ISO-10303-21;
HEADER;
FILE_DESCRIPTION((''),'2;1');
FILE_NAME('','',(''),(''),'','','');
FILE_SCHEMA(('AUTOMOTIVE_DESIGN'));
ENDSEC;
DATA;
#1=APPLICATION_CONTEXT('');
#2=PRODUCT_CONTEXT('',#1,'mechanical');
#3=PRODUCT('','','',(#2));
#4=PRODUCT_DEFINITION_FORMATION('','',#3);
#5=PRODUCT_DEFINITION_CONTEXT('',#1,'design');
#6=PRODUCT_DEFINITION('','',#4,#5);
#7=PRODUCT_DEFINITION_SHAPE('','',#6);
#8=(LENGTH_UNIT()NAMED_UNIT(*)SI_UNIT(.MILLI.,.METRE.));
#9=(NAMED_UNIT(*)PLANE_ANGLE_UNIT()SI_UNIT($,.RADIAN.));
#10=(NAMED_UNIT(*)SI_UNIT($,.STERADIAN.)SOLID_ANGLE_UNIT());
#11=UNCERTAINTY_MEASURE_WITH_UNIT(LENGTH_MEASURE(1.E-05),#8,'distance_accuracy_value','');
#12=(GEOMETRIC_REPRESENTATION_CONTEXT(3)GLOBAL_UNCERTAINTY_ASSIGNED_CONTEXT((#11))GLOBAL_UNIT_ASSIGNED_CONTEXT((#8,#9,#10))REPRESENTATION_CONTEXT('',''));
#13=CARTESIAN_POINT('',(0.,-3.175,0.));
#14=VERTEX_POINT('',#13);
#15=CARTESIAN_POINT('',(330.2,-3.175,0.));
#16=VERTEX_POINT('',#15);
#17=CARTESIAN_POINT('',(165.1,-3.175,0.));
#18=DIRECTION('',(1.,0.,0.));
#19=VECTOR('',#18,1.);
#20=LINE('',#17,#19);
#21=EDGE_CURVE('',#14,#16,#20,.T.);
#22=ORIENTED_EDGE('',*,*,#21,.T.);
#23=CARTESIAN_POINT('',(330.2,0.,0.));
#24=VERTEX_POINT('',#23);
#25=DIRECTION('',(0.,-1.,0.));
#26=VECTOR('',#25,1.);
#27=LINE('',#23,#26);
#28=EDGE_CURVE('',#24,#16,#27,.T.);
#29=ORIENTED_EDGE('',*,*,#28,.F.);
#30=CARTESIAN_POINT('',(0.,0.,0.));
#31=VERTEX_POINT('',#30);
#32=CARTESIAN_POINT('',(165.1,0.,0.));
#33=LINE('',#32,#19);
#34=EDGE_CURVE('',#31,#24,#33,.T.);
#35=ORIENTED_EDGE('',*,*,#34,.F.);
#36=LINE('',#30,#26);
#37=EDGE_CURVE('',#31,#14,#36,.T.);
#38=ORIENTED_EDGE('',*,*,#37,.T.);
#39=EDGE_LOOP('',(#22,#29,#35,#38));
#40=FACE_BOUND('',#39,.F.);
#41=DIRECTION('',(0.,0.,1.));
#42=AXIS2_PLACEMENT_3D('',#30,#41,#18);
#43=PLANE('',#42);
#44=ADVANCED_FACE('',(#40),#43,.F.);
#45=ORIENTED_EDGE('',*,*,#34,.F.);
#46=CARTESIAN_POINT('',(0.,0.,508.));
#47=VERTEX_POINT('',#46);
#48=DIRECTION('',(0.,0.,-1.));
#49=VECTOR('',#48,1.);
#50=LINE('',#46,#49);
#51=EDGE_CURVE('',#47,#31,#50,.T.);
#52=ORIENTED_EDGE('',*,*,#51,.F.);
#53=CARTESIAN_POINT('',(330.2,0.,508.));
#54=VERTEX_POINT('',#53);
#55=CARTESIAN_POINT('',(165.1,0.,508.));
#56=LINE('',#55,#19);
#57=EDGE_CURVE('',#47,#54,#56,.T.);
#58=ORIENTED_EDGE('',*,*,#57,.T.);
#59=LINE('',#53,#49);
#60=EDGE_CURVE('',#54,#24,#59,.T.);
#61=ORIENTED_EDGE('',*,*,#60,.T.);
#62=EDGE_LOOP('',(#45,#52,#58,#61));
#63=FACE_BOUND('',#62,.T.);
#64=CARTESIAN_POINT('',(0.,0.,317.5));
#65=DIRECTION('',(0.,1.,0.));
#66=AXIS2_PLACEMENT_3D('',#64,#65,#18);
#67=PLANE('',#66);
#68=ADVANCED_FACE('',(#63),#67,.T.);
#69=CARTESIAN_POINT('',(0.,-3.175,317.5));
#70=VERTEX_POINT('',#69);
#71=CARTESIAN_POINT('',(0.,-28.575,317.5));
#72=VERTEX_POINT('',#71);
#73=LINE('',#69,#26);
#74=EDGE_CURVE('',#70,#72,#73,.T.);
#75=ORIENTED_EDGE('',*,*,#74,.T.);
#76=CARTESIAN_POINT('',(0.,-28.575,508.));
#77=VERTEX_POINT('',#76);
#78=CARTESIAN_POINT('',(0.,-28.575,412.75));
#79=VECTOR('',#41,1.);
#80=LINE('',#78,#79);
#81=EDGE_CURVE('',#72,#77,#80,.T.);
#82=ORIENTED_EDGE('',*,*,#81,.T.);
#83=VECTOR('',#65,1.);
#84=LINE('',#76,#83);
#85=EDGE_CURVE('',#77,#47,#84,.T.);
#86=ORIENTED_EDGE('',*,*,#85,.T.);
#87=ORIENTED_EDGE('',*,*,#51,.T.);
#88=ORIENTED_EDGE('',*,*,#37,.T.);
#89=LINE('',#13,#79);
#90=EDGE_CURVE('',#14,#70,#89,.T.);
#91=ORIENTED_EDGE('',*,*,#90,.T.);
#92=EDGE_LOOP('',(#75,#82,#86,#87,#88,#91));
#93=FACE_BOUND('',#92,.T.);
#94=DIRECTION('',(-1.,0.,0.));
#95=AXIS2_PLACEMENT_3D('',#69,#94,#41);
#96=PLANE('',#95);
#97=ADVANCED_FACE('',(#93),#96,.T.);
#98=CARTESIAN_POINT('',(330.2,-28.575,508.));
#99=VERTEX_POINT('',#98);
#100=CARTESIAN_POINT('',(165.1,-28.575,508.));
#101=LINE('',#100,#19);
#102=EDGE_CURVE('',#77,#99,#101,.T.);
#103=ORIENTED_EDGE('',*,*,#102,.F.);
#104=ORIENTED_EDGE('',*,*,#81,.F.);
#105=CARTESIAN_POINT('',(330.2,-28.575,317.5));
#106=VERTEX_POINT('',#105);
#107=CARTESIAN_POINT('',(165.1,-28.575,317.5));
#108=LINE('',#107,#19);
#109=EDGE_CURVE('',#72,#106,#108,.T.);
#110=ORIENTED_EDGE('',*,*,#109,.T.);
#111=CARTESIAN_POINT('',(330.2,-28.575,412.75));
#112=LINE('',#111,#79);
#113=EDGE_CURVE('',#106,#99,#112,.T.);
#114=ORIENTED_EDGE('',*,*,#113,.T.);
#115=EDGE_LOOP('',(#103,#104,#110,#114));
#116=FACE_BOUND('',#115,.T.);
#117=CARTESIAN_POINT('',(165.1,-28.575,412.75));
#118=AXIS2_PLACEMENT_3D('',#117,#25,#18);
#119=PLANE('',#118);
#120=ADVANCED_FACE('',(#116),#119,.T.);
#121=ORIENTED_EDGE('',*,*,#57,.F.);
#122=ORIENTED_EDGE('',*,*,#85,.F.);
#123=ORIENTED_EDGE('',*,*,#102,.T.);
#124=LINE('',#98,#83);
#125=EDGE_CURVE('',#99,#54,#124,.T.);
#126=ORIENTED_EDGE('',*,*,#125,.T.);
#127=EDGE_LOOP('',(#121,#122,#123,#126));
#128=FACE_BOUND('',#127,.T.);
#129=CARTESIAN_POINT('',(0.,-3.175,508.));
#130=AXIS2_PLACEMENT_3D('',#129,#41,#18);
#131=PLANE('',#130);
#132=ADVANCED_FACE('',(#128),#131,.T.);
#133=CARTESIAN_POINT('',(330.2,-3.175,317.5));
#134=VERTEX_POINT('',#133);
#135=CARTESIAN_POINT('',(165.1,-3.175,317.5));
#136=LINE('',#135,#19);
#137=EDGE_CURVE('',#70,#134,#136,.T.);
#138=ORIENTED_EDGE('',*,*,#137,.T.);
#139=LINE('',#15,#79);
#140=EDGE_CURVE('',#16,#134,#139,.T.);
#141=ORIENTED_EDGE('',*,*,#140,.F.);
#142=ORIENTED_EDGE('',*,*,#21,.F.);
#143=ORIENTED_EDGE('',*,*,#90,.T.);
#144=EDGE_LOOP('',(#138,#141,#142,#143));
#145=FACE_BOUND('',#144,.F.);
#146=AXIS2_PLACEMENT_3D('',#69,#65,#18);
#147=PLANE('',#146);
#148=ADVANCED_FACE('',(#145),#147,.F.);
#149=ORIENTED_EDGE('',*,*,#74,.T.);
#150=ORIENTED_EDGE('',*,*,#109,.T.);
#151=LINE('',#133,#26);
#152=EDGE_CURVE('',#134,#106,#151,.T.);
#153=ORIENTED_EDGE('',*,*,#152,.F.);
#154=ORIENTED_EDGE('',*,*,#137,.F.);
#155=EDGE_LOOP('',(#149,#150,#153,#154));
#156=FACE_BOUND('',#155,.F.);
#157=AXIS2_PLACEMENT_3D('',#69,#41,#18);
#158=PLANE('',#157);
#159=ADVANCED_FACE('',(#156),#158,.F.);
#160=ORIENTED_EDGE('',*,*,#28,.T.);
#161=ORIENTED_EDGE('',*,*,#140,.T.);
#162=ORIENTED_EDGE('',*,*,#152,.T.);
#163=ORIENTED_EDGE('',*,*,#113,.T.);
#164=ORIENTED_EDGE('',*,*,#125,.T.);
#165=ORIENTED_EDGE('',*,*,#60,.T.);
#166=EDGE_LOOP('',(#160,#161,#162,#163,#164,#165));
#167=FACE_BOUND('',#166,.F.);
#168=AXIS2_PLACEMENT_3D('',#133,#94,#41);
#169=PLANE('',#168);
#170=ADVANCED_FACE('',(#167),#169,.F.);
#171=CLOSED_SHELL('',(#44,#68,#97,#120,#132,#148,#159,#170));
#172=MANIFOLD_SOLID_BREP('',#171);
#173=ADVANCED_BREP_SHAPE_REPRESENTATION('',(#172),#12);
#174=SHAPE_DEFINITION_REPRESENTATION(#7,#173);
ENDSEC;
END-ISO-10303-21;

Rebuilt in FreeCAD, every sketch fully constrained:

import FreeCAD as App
import Part
import Sketcher
from FreeCAD import Vector
Q = App.Units.Quantity

doc = App.newDocument("Part")
body = doc.addObject("PartDesign::Body", "Body")

sketch1 = body.newObject("Sketcher::SketchObject", "Sketch")
sketch1.AttachmentSupport = (doc.getObject("XZ_Plane"), [""])
sketch1.MapMode = "FlatFace"
sketch1.addGeometry([
    Part.LineSegment(Vector(0, 317.5, 0), Vector(0, 0, 0)),
    Part.LineSegment(Vector(0, 0, 0), Vector(330.2, 0, 0)),
    Part.LineSegment(Vector(330.2, 0, 0), Vector(330.2, 317.5, 0)),
    Part.LineSegment(Vector(330.2, 317.5, 0), Vector(0, 317.5, 0)),
], False)
sketch1.addConstraint([
    Sketcher.Constraint("Coincident", 0, 2, 1, 1),
    Sketcher.Constraint("Coincident", 1, 2, 2, 1),
    Sketcher.Constraint("Coincident", 2, 2, 3, 1),
    Sketcher.Constraint("Coincident", 3, 2, 0, 1),
    Sketcher.Constraint("Vertical", 0),
    Sketcher.Constraint("Horizontal", 1),
    Sketcher.Constraint("Vertical", 2),
    Sketcher.Constraint("Horizontal", 3),
    Sketcher.Constraint("Coincident", 0, 2, -1, 1),
    Sketcher.Constraint("DistanceX", 1, 1, 1, 2, Q("13 in")),
    Sketcher.Constraint("DistanceY", 0, 2, 0, 1, Q("12.5 in")),
])
pad1 = body.newObject("PartDesign::Pad", "Pad")
pad1.Profile = sketch1
pad1.Length = Q("0.125 in")

sketch2 = body.newObject("Sketcher::SketchObject", "Sketch001")
sketch2.AttachmentSupport = (doc.getObject("XY_Plane"), [""])
sketch2.MapMode = "FlatFace"
sketch2.AttachmentOffset = App.Placement(Vector(0, 0, 12.5 * 25.4), App.Rotation())
sketch2.addGeometry([
    Part.LineSegment(Vector(0, 0, 0), Vector(0, -3.175, 0)),
    Part.LineSegment(Vector(0, -3.175, 0), Vector(330.2, -3.175, 0)),
    Part.LineSegment(Vector(330.2, -3.175, 0), Vector(330.2, 0, 0)),
    Part.LineSegment(Vector(330.2, 0, 0), Vector(0, 0, 0)),
], False)
sketch2.addConstraint([
    Sketcher.Constraint("Coincident", 0, 2, 1, 1),
    Sketcher.Constraint("Coincident", 1, 2, 2, 1),
    Sketcher.Constraint("Coincident", 2, 2, 3, 1),
    Sketcher.Constraint("Coincident", 3, 2, 0, 1),
    Sketcher.Constraint("Vertical", 0),
    Sketcher.Constraint("Horizontal", 1),
    Sketcher.Constraint("Vertical", 2),
    Sketcher.Constraint("Horizontal", 3),
    Sketcher.Constraint("Coincident", 3, 2, -1, 1),
    Sketcher.Constraint("DistanceX", 1, 1, 1, 2, Q("13 in")),
    Sketcher.Constraint("DistanceY", 0, 2, 0, 1, Q("0.125 in")),
])
pad2 = body.newObject("PartDesign::Pad", "Pad001")
pad2.Profile = sketch2
pad2.Length = Q("7.5 in")

sketch3 = body.newObject("Sketcher::SketchObject", "Sketch002")
sketch3.AttachmentSupport = (doc.getObject("XZ_Plane"), [""])
sketch3.MapMode = "FlatFace"
sketch3.AttachmentOffset = App.Placement(Vector(0, 0, 0.125 * 25.4), App.Rotation())
sketch3.addGeometry([
    Part.LineSegment(Vector(0, 508, 0), Vector(0, 317.5, 0)),
    Part.LineSegment(Vector(0, 317.5, 0), Vector(330.2, 317.5, 0)),
    Part.LineSegment(Vector(330.2, 317.5, 0), Vector(330.2, 508, 0)),
    Part.LineSegment(Vector(330.2, 508, 0), Vector(0, 508, 0)),
], False)
sketch3.addConstraint([
    Sketcher.Constraint("Coincident", 0, 2, 1, 1),
    Sketcher.Constraint("Coincident", 1, 2, 2, 1),
    Sketcher.Constraint("Coincident", 2, 2, 3, 1),
    Sketcher.Constraint("Coincident", 3, 2, 0, 1),
    Sketcher.Constraint("Vertical", 0),
    Sketcher.Constraint("Horizontal", 1),
    Sketcher.Constraint("Vertical", 2),
    Sketcher.Constraint("Horizontal", 3),
    Sketcher.Constraint("PointOnObject", 0, 2, -2),
    Sketcher.Constraint("DistanceX", 1, 1, 1, 2, Q("13 in")),
    Sketcher.Constraint("DistanceY", 0, 2, 0, 1, Q("7.5 in")),
    Sketcher.Constraint("DistanceY", -1, 1, 2, 2, Q("20 in")),
])
pad3 = body.newObject("PartDesign::Pad", "Pad002")
pad3.Profile = sketch3
pad3.Length = Q("1 in")

doc.recompute()
